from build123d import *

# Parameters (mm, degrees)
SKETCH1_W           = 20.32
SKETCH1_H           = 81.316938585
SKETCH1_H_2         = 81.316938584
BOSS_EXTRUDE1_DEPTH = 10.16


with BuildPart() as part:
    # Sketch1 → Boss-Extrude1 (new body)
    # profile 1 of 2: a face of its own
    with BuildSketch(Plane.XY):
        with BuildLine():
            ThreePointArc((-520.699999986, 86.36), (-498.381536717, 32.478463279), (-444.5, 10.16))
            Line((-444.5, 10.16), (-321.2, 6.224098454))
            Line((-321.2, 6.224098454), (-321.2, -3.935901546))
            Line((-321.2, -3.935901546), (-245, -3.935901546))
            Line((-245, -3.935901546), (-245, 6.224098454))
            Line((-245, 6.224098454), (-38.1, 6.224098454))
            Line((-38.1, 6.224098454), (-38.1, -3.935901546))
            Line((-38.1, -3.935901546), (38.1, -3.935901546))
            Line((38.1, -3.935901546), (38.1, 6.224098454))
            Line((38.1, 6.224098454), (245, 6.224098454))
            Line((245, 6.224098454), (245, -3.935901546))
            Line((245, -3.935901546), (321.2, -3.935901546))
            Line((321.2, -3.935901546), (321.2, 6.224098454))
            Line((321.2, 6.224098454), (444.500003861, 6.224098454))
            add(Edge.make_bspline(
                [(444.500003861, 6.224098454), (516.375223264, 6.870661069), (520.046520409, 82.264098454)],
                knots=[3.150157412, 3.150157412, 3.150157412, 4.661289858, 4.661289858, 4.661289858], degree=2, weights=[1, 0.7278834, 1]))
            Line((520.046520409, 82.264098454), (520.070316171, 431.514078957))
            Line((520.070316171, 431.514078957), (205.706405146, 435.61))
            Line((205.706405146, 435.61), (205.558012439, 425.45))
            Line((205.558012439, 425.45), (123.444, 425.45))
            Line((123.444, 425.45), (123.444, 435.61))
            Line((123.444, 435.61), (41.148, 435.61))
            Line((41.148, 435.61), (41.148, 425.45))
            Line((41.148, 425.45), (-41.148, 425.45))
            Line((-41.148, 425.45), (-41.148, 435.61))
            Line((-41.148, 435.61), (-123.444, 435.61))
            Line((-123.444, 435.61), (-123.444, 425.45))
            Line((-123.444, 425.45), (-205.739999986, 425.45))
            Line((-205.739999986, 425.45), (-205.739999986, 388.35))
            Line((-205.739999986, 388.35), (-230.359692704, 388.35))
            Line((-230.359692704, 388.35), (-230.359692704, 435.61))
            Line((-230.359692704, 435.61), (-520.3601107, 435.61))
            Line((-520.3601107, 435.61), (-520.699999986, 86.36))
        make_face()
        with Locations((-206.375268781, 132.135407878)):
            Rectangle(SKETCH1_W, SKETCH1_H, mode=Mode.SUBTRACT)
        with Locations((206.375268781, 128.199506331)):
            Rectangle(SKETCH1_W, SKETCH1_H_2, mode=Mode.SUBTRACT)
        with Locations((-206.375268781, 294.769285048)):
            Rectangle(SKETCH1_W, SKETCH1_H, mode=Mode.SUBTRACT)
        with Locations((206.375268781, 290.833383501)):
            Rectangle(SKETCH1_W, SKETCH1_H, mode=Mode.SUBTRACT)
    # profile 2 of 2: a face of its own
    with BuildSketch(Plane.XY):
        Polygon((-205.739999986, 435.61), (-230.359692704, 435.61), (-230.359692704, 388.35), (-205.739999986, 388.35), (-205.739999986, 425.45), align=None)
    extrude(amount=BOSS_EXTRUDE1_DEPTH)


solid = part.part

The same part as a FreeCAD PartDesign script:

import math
import FreeCAD as App
import Part
import Sketcher
Q = App.Units.Quantity

doc = App.newDocument("Part")
params = doc.addObject("Spreadsheet::Sheet", "Params")
for row, (alias, value) in enumerate([
    ("sketch1_radius", "3 in"),
    ("sketch1_width", "3 in"),
    ("sketch1_width2", "0.8 in"),
    ("sketch1_height", "0.4 in"),
    ("sketch1_width3", "3.24 in"),
    ("pad1_length", "0.4 in"),
], start=1):
    params.set(f"A{row}", alias)
    params.set(f"B{row}", "=" + value)
    params.setAlias(f"B{row}", alias)

body = doc.addObject("PartDesign::Body", "Body")

# Sketch on XY plane
sketch1 = body.newObject("Sketcher::SketchObject", "Sketch")
sketch1.AttachmentSupport = (doc.getObject("XY_Plane"), [""])
sketch1.MapMode = "FlatFace"
sketch1.addGeometry(Part.ArcOfCircle(Part.Circle(App.Vector(-444.5, 86.36, 0), App.Vector(0, 0, 1), 76.2), math.radians(-180), math.radians(-90)), False)
sketch1.addGeometry(Part.LineSegment(App.Vector(-444.5, 10.16, 0), App.Vector(-321.2, 6.224098, 0)), False)
sketch1.addGeometry(Part.LineSegment(App.Vector(-321.2, 6.224098, 0), App.Vector(-321.2, -3.935902, 0)), False)
sketch1.addGeometry(Part.LineSegment(App.Vector(-321.2, -3.935902, 0), App.Vector(-245, -3.935902, 0)), False)
sketch1.addGeometry(Part.LineSegment(App.Vector(-245, -3.935902, 0), App.Vector(-245, 6.224098, 0)), False)
sketch1.addGeometry(Part.LineSegment(App.Vector(-245, 6.224098, 0), App.Vector(-38.1, 6.224098, 0)), False)
sketch1.addGeometry(Part.LineSegment(App.Vector(-38.1, 6.224098, 0), App.Vector(-38.1, -3.935902, 0)), False)
sketch1.addGeometry(Part.LineSegment(App.Vector(-38.1, -3.935902, 0), App.Vector(38.1, -3.935902, 0)), False)
sketch1.addGeometry(Part.LineSegment(App.Vector(38.1, -3.935902, 0), App.Vector(38.1, 6.224098, 0)), False)
sketch1.addGeometry(Part.LineSegment(App.Vector(38.1, 6.224098, 0), App.Vector(245, 6.224098, 0)), False)
sketch1.addGeometry(Part.LineSegment(App.Vector(245, 6.224098, 0), App.Vector(245, -3.935902, 0)), False)
sketch1.addGeometry(Part.LineSegment(App.Vector(245, -3.935902, 0), App.Vector(321.2, -3.935902, 0)), False)
sketch1.addGeometry(Part.LineSegment(App.Vector(321.2, -3.935902, 0), App.Vector(321.2, 6.224098, 0)), False)
sketch1.addGeometry(Part.LineSegment(App.Vector(321.2, 6.224098, 0), App.Vector(444.500004, 6.224098, 0)), False)
sketch1.addGeometry(Part.BSplineCurve([App.Vector(444.500004, 6.224098, 0), App.Vector(516.375223, 6.870661, 0), App.Vector(520.04652, 82.264098, 0)], [3, 3], [3.150157412, 4.661289858], False, 2, [1, 0.7278834, 1], False), False)
sketch1.addGeometry(Part.LineSegment(App.Vector(520.04652, 82.264098, 0), App.Vector(520.070316, 431.514079, 0)), False)
sketch1.addGeometry(Part.LineSegment(App.Vector(520.070316, 431.514079, 0), App.Vector(205.706405, 435.61, 0)), False)
sketch1.addGeometry(Part.LineSegment(App.Vector(205.706405, 435.61, 0), App.Vector(205.558012, 425.45, 0)), False)
sketch1.addGeometry(Part.LineSegment(App.Vector(205.558012, 425.45, 0), App.Vector(123.444, 425.45, 0)), False)
sketch1.addGeometry(Part.LineSegment(App.Vector(123.444, 425.45, 0), App.Vector(123.444, 435.61, 0)), False)
sketch1.addGeometry(Part.LineSegment(App.Vector(123.444, 435.61, 0), App.Vector(41.148, 435.61, 0)), False)
sketch1.addGeometry(Part.LineSegment(App.Vector(41.148, 435.61, 0), App.Vector(41.148, 425.45, 0)), False)
sketch1.addGeometry(Part.LineSegment(App.Vector(41.148, 425.45, 0), App.Vector(-41.148, 425.45, 0)), False)
sketch1.addGeometry(Part.LineSegment(App.Vector(-41.148, 425.45, 0), App.Vector(-41.148, 435.61, 0)), False)
sketch1.addGeometry(Part.LineSegment(App.Vector(-41.148, 435.61, 0), App.Vector(-123.444, 435.61, 0)), False)
sketch1.addGeometry(Part.LineSegment(App.Vector(-123.444, 435.61, 0), App.Vector(-123.444, 425.45, 0)), False)
sketch1.addGeometry(Part.LineSegment(App.Vector(-123.444, 425.45, 0), App.Vector(-205.74, 425.45, 0)), False)
sketch1.addGeometry(Part.LineSegment(App.Vector(-205.74, 425.45, 0), App.Vector(-205.74, 435.61, 0)), False)
sketch1.addGeometry(Part.LineSegment(App.Vector(-205.74, 435.61, 0), App.Vector(-520.360111, 435.61, 0)), False)
sketch1.addGeometry(Part.LineSegment(App.Vector(-520.360111, 435.61, 0), App.Vector(-520.7, 86.36, 0)), False)
sketch1.addGeometry(Part.LineSegment(App.Vector(-196.215269, 91.476939, 0), App.Vector(-216.535269, 91.476939, 0)), False)
sketch1.addGeometry(Part.LineSegment(App.Vector(-216.535269, 91.476939, 0), App.Vector(-216.535269, 172.793877, 0)), False)
sketch1.addGeometry(Part.LineSegment(App.Vector(-216.535269, 172.793877, 0), App.Vector(-196.215269, 172.793877, 0)), False)
sketch1.addGeometry(Part.LineSegment(App.Vector(-196.215269, 172.793877, 0), App.Vector(-196.215269, 91.476939, 0)), False)
sketch1.addGeometry(Part.LineSegment(App.Vector(216.535269, 87.541037, 0), App.Vector(196.215269, 87.541037, 0)), False)
sketch1.addGeometry(Part.LineSegment(App.Vector(196.215269, 87.541037, 0), App.Vector(196.215269, 168.857976, 0)), False)
sketch1.addGeometry(Part.LineSegment(App.Vector(196.215269, 168.857976, 0), App.Vector(216.535269, 168.857976, 0)), False)
sketch1.addGeometry(Part.LineSegment(App.Vector(216.535269, 168.857976, 0), App.Vector(216.535269, 87.541037, 0)), False)
sketch1.addGeometry(Part.LineSegment(App.Vector(-196.215269, 254.110816, 0), App.Vector(-216.535269, 254.110816, 0)), False)
sketch1.addGeometry(Part.LineSegment(App.Vector(-216.535269, 254.110816, 0), App.Vector(-216.535269, 335.427754, 0)), False)
sketch1.addGeometry(Part.LineSegment(App.Vector(-216.535269, 335.427754, 0), App.Vector(-196.215269, 335.427754, 0)), False)
sketch1.addGeometry(Part.LineSegment(App.Vector(-196.215269, 335.427754, 0), App.Vector(-196.215269, 254.110816, 0)), False)
sketch1.addGeometry(Part.LineSegment(App.Vector(216.535269, 250.174914, 0), App.Vector(196.215269, 250.174914, 0)), False)
sketch1.addGeometry(Part.LineSegment(App.Vector(196.215269, 250.174914, 0), App.Vector(196.215269, 331.491853, 0)), False)
sketch1.addGeometry(Part.LineSegment(App.Vector(196.215269, 331.491853, 0), App.Vector(216.535269, 331.491853, 0)), False)
sketch1.addGeometry(Part.LineSegment(App.Vector(216.535269, 331.491853, 0), App.Vector(216.535269, 250.174914, 0)), False)
sketch1.addConstraint(Sketcher.Constraint("Block", 14))
sketch1.addConstraint(Sketcher.Constraint("Coincident", 0, 2, 1, 1))
sketch1.addConstraint(Sketcher.Constraint("Coincident", 1, 2, 2, 1))
sketch1.addConstraint(Sketcher.Constraint("Coincident", 2, 2, 3, 1))
sketch1.addConstraint(Sketcher.Constraint("Coincident", 3, 2, 4, 1))
sketch1.addConstraint(Sketcher.Constraint("Coincident", 4, 2, 5, 1))
sketch1.addConstraint(Sketcher.Constraint("Coincident", 5, 2, 6, 1))
sketch1.addConstraint(Sketcher.Constraint("Coincident", 6, 2, 7, 1))
sketch1.addConstraint(Sketcher.Constraint("Coincident", 7, 2, 8, 1))
sketch1.addConstraint(Sketcher.Constraint("Coincident", 8, 2, 9, 1))
sketch1.addConstraint(Sketcher.Constraint("Coincident", 9, 2, 10, 1))
sketch1.addConstraint(Sketcher.Constraint("Coincident", 10, 2, 11, 1))
sketch1.addConstraint(Sketcher.Constraint("Coincident", 11, 2, 12, 1))
sketch1.addConstraint(Sketcher.Constraint("Coincident", 12, 2, 13, 1))
sketch1.addConstraint(Sketcher.Constraint("Coincident", 13, 2, 14, 1))
sketch1.addConstraint(Sketcher.Constraint("Coincident", 14, 2, 15, 1))
sketch1.addConstraint(Sketcher.Constraint("Coincident", 15, 2, 16, 1))
sketch1.addConstraint(Sketcher.Constraint("Coincident", 16, 2, 17, 1))
sketch1.addConstraint(Sketcher.Constraint("Coincident", 17, 2, 18, 1))
sketch1.addConstraint(Sketcher.Constraint("Coincident", 18, 2, 19, 1))
sketch1.addConstraint(Sketcher.Constraint("Coincident", 19, 2, 20, 1))
sketch1.addConstraint(Sketcher.Constraint("Coincident", 20, 2, 21, 1))
sketch1.addConstraint(Sketcher.Constraint("Coincident", 21, 2, 22, 1))
sketch1.addConstraint(Sketcher.Constraint("Coincident", 22, 2, 23, 1))
sketch1.addConstraint(Sketcher.Constraint("Coincident", 23, 2, 24, 1))
sketch1.addConstraint(Sketcher.Constraint("Coincident", 24, 2, 25, 1))
sketch1.addConstraint(Sketcher.Constraint("Coincident", 25, 2, 26, 1))
sketch1.addConstraint(Sketcher.Constraint("Coincident", 26, 2, 27, 1))
sketch1.addConstraint(Sketcher.Constraint("Coincident", 27, 2, 28, 1))
sketch1.addConstraint(Sketcher.Constraint("Coincident", 28, 2, 29, 1))
sketch1.addConstraint(Sketcher.Constraint("Coincident", 29, 2, 0, 1))
sketch1.addConstraint(Sketcher.Constraint("Coincident", 30, 2, 31, 1))
sketch1.addConstraint(Sketcher.Constraint("Coincident", 31, 2, 32, 1))
sketch1.addConstraint(Sketcher.Constraint("Coincident", 32, 2, 33, 1))
sketch1.addConstraint(Sketcher.Constraint("Coincident", 33, 2, 30, 1))
sketch1.addConstraint(Sketcher.Constraint("Coincident", 34, 2, 35, 1))
sketch1.addConstraint(Sketcher.Constraint("Coincident", 35, 2, 36, 1))
sketch1.addConstraint(Sketcher.Constraint("Coincident", 36, 2, 37, 1))
sketch1.addConstraint(Sketcher.Constraint("Coincident", 37, 2, 34, 1))
sketch1.addConstraint(Sketcher.Constraint("Coincident", 38, 2, 39, 1))
sketch1.addConstraint(Sketcher.Constraint("Coincident", 39, 2, 40, 1))
sketch1.addConstraint(Sketcher.Constraint("Coincident", 40, 2, 41, 1))
sketch1.addConstraint(Sketcher.Constraint("Coincident", 41, 2, 38, 1))
sketch1.addConstraint(Sketcher.Constraint("Coincident", 42, 2, 43, 1))
sketch1.addConstraint(Sketcher.Constraint("Coincident", 43, 2, 44, 1))
sketch1.addConstraint(Sketcher.Constraint("Coincident", 44, 2, 45, 1))
sketch1.addConstraint(Sketcher.Constraint("Coincident", 45, 2, 42, 1))
sketch1.addConstraint(Sketcher.Constraint("Vertical", 2))
sketch1.addConstraint(Sketcher.Constraint("Horizontal", 3))
sketch1.addConstraint(Sketcher.Constraint("Vertical", 4))
sketch1.addConstraint(Sketcher.Constraint("Horizontal", 5))
sketch1.addConstraint(Sketcher.Constraint("Vertical", 6))
sketch1.addConstraint(Sketcher.Constraint("Horizontal", 7))
sketch1.addConstraint(Sketcher.Constraint("Vertical", 8))
sketch1.addConstraint(Sketcher.Constraint("Horizontal", 9))
sketch1.addConstraint(Sketcher.Constraint("Vertical", 10))
sketch1.addConstraint(Sketcher.Constraint("Horizontal", 11))
sketch1.addConstraint(Sketcher.Constraint("Vertical", 12))
sketch1.addConstraint(Sketcher.Constraint("Horizontal", 13))
sketch1.addConstraint(Sketcher.Constraint("Horizontal", 18))
sketch1.addConstraint(Sketcher.Constraint("Vertical", 19))
sketch1.addConstraint(Sketcher.Constraint("Horizontal", 20))
sketch1.addConstraint(Sketcher.Constraint("Vertical", 21))
sketch1.addConstraint(Sketcher.Constraint("Horizontal", 22))
sketch1.addConstraint(Sketcher.Constraint("Vertical", 23))
sketch1.addConstraint(Sketcher.Constraint("Horizontal", 24))
sketch1.addConstraint(Sketcher.Constraint("Vertical", 25))
sketch1.addConstraint(Sketcher.Constraint("Horizontal", 26))
sketch1.addConstraint(Sketcher.Constraint("Vertical", 27))
sketch1.addConstraint(Sketcher.Constraint("Horizontal", 28))
sketch1.addConstraint(Sketcher.Constraint("Horizontal", 30))
sketch1.addConstraint(Sketcher.Constraint("Vertical", 31))
sketch1.addConstraint(Sketcher.Constraint("Horizontal", 32))
sketch1.addConstraint(Sketcher.Constraint("Vertical", 33))
sketch1.addConstraint(Sketcher.Constraint("Horizontal", 34))
sketch1.addConstraint(Sketcher.Constraint("Vertical", 35))
sketch1.addConstraint(Sketcher.Constraint("Horizontal", 36))
sketch1.addConstraint(Sketcher.Constraint("Vertical", 37))
sketch1.addConstraint(Sketcher.Constraint("Horizontal", 38))
sketch1.addConstraint(Sketcher.Constraint("Vertical", 39))
sketch1.addConstraint(Sketcher.Constraint("Horizontal", 40))
sketch1.addConstraint(Sketcher.Constraint("Vertical", 41))
sketch1.addConstraint(Sketcher.Constraint("Horizontal", 42))
sketch1.addConstraint(Sketcher.Constraint("Vertical", 43))
sketch1.addConstraint(Sketcher.Constraint("Horizontal", 44))
sketch1.addConstraint(Sketcher.Constraint("Vertical", 45))
sketch1.addConstraint(Sketcher.Constraint("Symmetric", 5, 2, 8, 2, -2))
sketch1.addConstraint(Sketcher.Constraint("Symmetric", 3, 2, 10, 2, -2))
sketch1.addConstraint(Sketcher.Constraint("Symmetric", 1, 2, 12, 2, -2))
sketch1.addConstraint(Sketcher.Constraint("Symmetric", 20, 2, 23, 2, -2))
sketch1.addConstraint(Sketcher.Constraint("Symmetric", 18, 2, 25, 2, -2))
sketch1.addConstraint(Sketcher.Constraint("Horizontal", 1, 2, 4, 2))
sketch1.addConstraint(Sketcher.Constraint("Horizontal", 3, 2, 6, 2))
sketch1.addConstraint(Sketcher.Constraint("Horizontal", 16, 2, 19, 2))
sketch1.addConstraint(Sketcher.Constraint("Horizontal", 18, 2, 21, 2))
sketch1.addConstraint(Sketcher.Constraint("Horizontal", 24, 2, 27, 2))
sketch1.addConstraint(Sketcher.Constraint("Horizontal", 0, 3, 29, 2))
sketch1.addConstraint(Sketcher.Constraint("Vertical", 31, 2, 38, 2))
sketch1.addConstraint(Sketcher.Constraint("Vertical", 33, 2, 40, 2))
sketch1.addConstraint(Sketcher.Constraint("Vertical", 35, 2, 42, 2))
sketch1.addConstraint(Sketcher.Constraint("Vertical", 37, 2, 44, 2))
sketch1.addConstraint(Sketcher.Constraint("Equal", 3, 7))
sketch1.addConstraint(Sketcher.Constraint("Equal", 20, 22))
sketch1.addConstraint(Sketcher.Constraint("Equal", 24, 26))
sketch1.addConstraint(Sketcher.Constraint("Equal", 32, 34))
sketch1.addConstraint(Sketcher.Constraint("Equal", 12, 19))
sketch1.addConstraint(Sketcher.Constraint("Equal", 33, 35))
sketch1.addConstraint(Sketcher.Constraint("Equal", 37, 39))
sketch1.addConstraint(Sketcher.Constraint("Equal", 41, 43))
sketch1.addConstraint(Sketcher.Constraint("Radius", 0, Q("3 in")))
sketch1.addConstraint(Sketcher.Constraint("DistanceX", 3, 1, 3, 2, Q("3 in")))
sketch1.addConstraint(Sketcher.Constraint("DistanceX", 30, 2, 30, 1, Q("0.8 in")))
sketch1.addConstraint(Sketcher.Constraint("DistanceY", 2, 2, 2, 1, Q("0.4 in")))
sketch1.addConstraint(Sketcher.Constraint("DistanceX", 0, 2, 5, 2, Q("16 in")))
sketch1.addConstraint(Sketcher.Constraint("DistanceX", 29, 2, 0, 2, Q("3 in")))
sketch1.addConstraint(Sketcher.Constraint("DistanceX", 20, 2, 20, 1, Q("3.24 in")))
sketch1.addConstraint(Sketcher.Constraint("DistanceY", -1, 1, 0, 3, Q("3.4 in")))
sketch1.addConstraint(Sketcher.Constraint("DistanceY", -1, 1, 16, 2, Q("17.15 in")))
sketch1.addConstraint(Sketcher.Constraint("DistanceX", 5, 1, 5, 2, 206.9))
sketch1.addConstraint(Sketcher.Constraint("DistanceY", 13, 2, 15, 2, Q("16.7437 in")))
sketch1.addConstraint(Sketcher.Constraint("DistanceX", 28, 2, 28, 1, 314.620111))
sketch1.addConstraint(Sketcher.Constraint("DistanceY", 31, 1, 31, 2, 81.316939))
sketch1.addConstraint(Sketcher.Constraint("DistanceX", 18, 2, 18, 1, 82.114012))
sketch1.addConstraint(Sketcher.Constraint("DistanceX", 30, 2, -1, 1, 216.535269))
sketch1.addConstraint(Sketcher.Constraint("DistanceY", -1, 1, 30, 2, 91.476939))
sketch1.addConstraint(Sketcher.Constraint("DistanceX", -1, 1, 34, 2, 196.215269))
sketch1.addConstraint(Sketcher.Constraint("DistanceX", 16, 2, 15, 2, 314.363911))
sketch1.addConstraint(Sketcher.Constraint("DistanceY", 9, 2, 34, 2, 81.316939))
sketch1.addConstraint(Sketcher.Constraint("DistanceY", 31, 2, 38, 2, 81.316939))
sketch1.addConstraint(Sketcher.Constraint("DistanceY", 35, 2, 42, 2, 81.316939))
sketch1.addConstraint(Sketcher.Constraint("Distance", 17, 10.161084))
sketch1.setExpression("Constraints[109]", "Params.sketch1_radius")
sketch1.setExpression("Constraints[110]", "Params.sketch1_width")
sketch1.setExpression("Constraints[111]", "Params.sketch1_width2")
sketch1.setExpression("Constraints[112]", "Params.sketch1_height")
sketch1.setExpression("Constraints[115]", "Params.sketch1_width3")
pad1 = body.newObject("PartDesign::Pad", "Pad")
pad1.Profile = sketch1
pad1.setExpression("Length", "Params.pad1_length")

doc.recompute()
